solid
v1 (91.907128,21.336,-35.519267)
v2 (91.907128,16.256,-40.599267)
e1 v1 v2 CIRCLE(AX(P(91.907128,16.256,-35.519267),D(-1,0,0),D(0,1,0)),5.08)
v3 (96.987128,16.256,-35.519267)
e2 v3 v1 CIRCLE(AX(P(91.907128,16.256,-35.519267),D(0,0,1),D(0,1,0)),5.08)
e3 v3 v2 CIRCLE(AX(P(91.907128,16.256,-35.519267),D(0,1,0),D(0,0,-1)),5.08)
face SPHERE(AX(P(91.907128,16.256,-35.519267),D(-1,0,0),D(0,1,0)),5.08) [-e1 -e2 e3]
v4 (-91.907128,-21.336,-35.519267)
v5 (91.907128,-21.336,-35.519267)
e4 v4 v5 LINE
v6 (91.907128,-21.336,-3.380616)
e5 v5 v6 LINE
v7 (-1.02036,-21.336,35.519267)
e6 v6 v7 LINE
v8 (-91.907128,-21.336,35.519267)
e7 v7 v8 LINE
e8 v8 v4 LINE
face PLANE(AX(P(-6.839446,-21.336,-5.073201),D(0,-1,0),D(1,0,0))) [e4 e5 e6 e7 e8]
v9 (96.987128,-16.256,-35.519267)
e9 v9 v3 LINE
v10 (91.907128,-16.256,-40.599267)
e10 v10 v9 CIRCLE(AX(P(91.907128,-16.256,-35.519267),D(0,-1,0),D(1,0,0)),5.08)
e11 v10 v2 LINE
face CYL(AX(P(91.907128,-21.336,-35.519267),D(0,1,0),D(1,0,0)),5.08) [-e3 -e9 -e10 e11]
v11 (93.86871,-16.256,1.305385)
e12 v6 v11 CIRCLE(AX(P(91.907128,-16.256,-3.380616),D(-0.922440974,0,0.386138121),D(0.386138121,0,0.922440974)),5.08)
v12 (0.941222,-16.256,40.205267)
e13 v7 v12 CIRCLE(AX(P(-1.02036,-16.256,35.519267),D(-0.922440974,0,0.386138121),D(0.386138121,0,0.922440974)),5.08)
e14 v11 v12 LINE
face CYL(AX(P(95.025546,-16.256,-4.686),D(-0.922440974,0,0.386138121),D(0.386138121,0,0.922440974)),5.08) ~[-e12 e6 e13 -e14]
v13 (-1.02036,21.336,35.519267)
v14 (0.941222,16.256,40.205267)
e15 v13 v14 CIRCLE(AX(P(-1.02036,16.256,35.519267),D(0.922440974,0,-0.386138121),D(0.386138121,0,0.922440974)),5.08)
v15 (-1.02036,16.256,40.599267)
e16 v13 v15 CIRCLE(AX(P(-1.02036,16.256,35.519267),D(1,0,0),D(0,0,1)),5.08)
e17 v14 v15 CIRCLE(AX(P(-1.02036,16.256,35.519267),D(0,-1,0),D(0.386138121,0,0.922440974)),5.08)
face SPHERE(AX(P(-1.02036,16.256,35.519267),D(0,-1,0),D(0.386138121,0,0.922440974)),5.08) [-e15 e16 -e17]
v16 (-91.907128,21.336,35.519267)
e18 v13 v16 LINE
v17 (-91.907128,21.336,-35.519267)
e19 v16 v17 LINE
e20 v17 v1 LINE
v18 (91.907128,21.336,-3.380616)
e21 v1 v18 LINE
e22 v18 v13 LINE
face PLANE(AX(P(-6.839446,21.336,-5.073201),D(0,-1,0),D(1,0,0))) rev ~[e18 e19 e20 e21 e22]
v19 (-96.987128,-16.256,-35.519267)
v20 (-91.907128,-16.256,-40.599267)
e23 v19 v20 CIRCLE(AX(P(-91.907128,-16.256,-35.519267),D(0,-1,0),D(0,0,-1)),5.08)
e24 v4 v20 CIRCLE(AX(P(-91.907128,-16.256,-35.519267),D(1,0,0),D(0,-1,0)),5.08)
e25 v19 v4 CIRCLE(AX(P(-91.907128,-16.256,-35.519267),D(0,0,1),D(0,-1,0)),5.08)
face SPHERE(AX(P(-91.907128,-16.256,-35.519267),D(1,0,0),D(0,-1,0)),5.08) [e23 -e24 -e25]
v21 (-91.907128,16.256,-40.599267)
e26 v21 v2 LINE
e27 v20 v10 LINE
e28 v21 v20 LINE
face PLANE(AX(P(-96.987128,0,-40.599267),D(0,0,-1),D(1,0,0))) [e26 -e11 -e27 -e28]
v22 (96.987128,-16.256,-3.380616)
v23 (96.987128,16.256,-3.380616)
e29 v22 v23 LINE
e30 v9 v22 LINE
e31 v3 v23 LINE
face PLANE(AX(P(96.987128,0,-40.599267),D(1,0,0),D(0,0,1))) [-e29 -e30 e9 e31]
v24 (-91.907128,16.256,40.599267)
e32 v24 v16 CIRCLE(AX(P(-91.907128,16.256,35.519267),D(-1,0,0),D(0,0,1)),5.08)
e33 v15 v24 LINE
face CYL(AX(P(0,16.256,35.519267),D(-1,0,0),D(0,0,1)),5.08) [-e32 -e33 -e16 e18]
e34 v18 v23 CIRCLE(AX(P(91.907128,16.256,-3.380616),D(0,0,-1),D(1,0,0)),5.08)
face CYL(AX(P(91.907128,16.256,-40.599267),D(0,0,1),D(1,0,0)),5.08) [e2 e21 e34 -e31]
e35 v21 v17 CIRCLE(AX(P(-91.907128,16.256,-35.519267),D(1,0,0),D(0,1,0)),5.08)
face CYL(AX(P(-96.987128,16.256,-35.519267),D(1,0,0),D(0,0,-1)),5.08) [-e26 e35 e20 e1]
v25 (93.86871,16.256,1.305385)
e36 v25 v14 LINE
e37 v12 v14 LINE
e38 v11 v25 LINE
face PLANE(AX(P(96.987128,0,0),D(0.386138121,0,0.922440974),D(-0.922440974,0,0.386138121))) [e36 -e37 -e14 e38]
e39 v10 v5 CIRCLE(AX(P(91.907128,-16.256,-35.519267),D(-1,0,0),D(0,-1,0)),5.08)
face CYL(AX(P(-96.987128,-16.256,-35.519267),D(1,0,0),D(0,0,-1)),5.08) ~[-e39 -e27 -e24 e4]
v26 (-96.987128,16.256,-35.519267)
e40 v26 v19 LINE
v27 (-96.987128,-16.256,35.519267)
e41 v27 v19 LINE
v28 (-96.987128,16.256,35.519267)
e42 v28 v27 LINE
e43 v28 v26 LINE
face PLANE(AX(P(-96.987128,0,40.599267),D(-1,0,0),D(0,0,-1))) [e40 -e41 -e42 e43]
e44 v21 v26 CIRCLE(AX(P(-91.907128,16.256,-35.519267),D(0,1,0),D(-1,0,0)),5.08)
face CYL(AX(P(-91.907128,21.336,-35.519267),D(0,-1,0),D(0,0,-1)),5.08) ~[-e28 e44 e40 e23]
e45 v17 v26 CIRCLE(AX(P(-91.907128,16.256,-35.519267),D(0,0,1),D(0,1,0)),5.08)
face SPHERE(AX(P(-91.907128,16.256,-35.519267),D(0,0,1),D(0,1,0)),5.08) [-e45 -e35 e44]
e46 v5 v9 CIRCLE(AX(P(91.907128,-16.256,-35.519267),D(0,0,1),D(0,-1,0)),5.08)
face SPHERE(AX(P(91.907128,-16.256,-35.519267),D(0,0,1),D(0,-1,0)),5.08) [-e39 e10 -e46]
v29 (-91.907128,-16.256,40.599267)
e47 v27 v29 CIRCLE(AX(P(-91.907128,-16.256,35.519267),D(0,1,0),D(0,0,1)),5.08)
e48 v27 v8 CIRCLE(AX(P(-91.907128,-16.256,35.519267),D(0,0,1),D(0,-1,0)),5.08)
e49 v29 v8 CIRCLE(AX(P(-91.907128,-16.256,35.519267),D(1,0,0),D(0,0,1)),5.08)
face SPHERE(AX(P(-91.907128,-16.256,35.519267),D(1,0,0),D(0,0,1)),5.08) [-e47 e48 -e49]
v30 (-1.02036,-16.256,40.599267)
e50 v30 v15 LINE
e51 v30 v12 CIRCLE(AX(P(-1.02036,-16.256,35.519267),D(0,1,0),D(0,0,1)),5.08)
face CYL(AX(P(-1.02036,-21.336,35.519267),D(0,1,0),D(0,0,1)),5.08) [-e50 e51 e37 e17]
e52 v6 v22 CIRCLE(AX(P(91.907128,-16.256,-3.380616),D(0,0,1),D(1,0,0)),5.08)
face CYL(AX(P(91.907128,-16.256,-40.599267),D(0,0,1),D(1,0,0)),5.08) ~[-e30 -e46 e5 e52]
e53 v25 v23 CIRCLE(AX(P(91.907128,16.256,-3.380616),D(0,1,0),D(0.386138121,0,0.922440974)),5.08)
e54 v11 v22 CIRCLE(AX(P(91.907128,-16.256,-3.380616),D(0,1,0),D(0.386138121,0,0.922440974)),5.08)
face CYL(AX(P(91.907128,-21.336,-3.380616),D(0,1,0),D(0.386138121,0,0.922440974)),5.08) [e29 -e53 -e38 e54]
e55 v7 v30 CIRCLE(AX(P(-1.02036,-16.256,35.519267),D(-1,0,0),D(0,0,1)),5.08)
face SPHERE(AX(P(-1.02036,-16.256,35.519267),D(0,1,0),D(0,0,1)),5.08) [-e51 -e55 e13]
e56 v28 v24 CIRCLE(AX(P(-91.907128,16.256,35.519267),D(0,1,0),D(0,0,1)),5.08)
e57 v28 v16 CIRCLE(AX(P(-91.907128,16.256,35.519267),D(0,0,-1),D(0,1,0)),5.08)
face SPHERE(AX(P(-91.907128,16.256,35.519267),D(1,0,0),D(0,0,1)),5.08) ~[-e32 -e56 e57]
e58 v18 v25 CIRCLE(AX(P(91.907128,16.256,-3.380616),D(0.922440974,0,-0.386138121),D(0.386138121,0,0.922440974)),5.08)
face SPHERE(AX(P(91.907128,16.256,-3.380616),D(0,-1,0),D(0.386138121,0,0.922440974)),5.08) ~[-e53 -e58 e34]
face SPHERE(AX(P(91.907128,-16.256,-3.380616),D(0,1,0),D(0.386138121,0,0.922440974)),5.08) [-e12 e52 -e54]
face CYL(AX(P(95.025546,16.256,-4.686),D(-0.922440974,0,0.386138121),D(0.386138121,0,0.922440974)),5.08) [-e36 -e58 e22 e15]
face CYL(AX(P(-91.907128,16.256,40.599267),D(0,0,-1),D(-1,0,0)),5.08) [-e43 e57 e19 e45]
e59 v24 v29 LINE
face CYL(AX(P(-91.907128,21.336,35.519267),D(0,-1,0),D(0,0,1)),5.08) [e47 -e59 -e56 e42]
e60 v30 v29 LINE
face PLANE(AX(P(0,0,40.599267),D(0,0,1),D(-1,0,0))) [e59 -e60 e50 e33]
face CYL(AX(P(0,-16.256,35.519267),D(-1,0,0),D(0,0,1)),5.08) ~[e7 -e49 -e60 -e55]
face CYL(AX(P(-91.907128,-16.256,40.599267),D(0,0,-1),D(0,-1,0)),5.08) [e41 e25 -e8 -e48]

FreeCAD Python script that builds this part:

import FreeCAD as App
import Part
import Sketcher
Q = App.Units.Quantity

doc = App.newDocument("Part")
body = doc.addObject("PartDesign::Body", "Body")

sketch1 = body.newObject("Sketcher::SketchObject", "Sketch")
sketch1.AttachmentSupport = (doc.getObject("XZ_Plane"), [""])
sketch1.MapMode = "FlatFace"
sketch1.addGeometry([
    Part.LineSegment(App.Vector(0, 41, 0), App.Vector(-97, 41, 0)),
    Part.LineSegment(App.Vector(-97, 41, 0), App.Vector(-97, -41, 0)),
    Part.LineSegment(App.Vector(-97, -41, 0), App.Vector(97, -41, 0)),
    Part.LineSegment(App.Vector(97, -41, 0), App.Vector(97, 0, 0)),
    Part.LineSegment(App.Vector(97, 0, 0), App.Vector(0, 41, 0)),
], False)
sketch1.addConstraint([
    Sketcher.Constraint("Coincident", 0, 2, 1, 1),
    Sketcher.Constraint("Coincident", 1, 2, 2, 1),
    Sketcher.Constraint("Coincident", 2, 2, 3, 1),
    Sketcher.Constraint("Coincident", 3, 2, 4, 1),
    Sketcher.Constraint("Coincident", 4, 2, 0, 1),
    Sketcher.Constraint("Horizontal", 0),
    Sketcher.Constraint("Vertical", 1),
    Sketcher.Constraint("Horizontal", 2),
    Sketcher.Constraint("Vertical", 3),
    Sketcher.Constraint("Symmetric", 0, 2, 2, 2, -1, 1),
    Sketcher.Constraint("PointOnObject", 3, 2, -1),
    Sketcher.Constraint("PointOnObject", 4, 2, -2),
    Sketcher.Constraint("DistanceX", 0, 2, 0, 1, Q("96.987128 mm")),
    Sketcher.Constraint("DistanceY", 1, 2, 1, 1, Q("81.198534 mm")),
])
pad1 = body.newObject("PartDesign::Pad", "Pad")
pad1.Profile = sketch1
pad1.Length = Q("1.68 in")
pad1.Midplane = True
doc.recompute()

fillet = body.newObject("PartDesign::Fillet", "Fillet")
fillet.Base = (pad1, ["Edge1"])
fillet.UseAllEdges = True
fillet.Radius = Q("0.2 in")

doc.recompute()
